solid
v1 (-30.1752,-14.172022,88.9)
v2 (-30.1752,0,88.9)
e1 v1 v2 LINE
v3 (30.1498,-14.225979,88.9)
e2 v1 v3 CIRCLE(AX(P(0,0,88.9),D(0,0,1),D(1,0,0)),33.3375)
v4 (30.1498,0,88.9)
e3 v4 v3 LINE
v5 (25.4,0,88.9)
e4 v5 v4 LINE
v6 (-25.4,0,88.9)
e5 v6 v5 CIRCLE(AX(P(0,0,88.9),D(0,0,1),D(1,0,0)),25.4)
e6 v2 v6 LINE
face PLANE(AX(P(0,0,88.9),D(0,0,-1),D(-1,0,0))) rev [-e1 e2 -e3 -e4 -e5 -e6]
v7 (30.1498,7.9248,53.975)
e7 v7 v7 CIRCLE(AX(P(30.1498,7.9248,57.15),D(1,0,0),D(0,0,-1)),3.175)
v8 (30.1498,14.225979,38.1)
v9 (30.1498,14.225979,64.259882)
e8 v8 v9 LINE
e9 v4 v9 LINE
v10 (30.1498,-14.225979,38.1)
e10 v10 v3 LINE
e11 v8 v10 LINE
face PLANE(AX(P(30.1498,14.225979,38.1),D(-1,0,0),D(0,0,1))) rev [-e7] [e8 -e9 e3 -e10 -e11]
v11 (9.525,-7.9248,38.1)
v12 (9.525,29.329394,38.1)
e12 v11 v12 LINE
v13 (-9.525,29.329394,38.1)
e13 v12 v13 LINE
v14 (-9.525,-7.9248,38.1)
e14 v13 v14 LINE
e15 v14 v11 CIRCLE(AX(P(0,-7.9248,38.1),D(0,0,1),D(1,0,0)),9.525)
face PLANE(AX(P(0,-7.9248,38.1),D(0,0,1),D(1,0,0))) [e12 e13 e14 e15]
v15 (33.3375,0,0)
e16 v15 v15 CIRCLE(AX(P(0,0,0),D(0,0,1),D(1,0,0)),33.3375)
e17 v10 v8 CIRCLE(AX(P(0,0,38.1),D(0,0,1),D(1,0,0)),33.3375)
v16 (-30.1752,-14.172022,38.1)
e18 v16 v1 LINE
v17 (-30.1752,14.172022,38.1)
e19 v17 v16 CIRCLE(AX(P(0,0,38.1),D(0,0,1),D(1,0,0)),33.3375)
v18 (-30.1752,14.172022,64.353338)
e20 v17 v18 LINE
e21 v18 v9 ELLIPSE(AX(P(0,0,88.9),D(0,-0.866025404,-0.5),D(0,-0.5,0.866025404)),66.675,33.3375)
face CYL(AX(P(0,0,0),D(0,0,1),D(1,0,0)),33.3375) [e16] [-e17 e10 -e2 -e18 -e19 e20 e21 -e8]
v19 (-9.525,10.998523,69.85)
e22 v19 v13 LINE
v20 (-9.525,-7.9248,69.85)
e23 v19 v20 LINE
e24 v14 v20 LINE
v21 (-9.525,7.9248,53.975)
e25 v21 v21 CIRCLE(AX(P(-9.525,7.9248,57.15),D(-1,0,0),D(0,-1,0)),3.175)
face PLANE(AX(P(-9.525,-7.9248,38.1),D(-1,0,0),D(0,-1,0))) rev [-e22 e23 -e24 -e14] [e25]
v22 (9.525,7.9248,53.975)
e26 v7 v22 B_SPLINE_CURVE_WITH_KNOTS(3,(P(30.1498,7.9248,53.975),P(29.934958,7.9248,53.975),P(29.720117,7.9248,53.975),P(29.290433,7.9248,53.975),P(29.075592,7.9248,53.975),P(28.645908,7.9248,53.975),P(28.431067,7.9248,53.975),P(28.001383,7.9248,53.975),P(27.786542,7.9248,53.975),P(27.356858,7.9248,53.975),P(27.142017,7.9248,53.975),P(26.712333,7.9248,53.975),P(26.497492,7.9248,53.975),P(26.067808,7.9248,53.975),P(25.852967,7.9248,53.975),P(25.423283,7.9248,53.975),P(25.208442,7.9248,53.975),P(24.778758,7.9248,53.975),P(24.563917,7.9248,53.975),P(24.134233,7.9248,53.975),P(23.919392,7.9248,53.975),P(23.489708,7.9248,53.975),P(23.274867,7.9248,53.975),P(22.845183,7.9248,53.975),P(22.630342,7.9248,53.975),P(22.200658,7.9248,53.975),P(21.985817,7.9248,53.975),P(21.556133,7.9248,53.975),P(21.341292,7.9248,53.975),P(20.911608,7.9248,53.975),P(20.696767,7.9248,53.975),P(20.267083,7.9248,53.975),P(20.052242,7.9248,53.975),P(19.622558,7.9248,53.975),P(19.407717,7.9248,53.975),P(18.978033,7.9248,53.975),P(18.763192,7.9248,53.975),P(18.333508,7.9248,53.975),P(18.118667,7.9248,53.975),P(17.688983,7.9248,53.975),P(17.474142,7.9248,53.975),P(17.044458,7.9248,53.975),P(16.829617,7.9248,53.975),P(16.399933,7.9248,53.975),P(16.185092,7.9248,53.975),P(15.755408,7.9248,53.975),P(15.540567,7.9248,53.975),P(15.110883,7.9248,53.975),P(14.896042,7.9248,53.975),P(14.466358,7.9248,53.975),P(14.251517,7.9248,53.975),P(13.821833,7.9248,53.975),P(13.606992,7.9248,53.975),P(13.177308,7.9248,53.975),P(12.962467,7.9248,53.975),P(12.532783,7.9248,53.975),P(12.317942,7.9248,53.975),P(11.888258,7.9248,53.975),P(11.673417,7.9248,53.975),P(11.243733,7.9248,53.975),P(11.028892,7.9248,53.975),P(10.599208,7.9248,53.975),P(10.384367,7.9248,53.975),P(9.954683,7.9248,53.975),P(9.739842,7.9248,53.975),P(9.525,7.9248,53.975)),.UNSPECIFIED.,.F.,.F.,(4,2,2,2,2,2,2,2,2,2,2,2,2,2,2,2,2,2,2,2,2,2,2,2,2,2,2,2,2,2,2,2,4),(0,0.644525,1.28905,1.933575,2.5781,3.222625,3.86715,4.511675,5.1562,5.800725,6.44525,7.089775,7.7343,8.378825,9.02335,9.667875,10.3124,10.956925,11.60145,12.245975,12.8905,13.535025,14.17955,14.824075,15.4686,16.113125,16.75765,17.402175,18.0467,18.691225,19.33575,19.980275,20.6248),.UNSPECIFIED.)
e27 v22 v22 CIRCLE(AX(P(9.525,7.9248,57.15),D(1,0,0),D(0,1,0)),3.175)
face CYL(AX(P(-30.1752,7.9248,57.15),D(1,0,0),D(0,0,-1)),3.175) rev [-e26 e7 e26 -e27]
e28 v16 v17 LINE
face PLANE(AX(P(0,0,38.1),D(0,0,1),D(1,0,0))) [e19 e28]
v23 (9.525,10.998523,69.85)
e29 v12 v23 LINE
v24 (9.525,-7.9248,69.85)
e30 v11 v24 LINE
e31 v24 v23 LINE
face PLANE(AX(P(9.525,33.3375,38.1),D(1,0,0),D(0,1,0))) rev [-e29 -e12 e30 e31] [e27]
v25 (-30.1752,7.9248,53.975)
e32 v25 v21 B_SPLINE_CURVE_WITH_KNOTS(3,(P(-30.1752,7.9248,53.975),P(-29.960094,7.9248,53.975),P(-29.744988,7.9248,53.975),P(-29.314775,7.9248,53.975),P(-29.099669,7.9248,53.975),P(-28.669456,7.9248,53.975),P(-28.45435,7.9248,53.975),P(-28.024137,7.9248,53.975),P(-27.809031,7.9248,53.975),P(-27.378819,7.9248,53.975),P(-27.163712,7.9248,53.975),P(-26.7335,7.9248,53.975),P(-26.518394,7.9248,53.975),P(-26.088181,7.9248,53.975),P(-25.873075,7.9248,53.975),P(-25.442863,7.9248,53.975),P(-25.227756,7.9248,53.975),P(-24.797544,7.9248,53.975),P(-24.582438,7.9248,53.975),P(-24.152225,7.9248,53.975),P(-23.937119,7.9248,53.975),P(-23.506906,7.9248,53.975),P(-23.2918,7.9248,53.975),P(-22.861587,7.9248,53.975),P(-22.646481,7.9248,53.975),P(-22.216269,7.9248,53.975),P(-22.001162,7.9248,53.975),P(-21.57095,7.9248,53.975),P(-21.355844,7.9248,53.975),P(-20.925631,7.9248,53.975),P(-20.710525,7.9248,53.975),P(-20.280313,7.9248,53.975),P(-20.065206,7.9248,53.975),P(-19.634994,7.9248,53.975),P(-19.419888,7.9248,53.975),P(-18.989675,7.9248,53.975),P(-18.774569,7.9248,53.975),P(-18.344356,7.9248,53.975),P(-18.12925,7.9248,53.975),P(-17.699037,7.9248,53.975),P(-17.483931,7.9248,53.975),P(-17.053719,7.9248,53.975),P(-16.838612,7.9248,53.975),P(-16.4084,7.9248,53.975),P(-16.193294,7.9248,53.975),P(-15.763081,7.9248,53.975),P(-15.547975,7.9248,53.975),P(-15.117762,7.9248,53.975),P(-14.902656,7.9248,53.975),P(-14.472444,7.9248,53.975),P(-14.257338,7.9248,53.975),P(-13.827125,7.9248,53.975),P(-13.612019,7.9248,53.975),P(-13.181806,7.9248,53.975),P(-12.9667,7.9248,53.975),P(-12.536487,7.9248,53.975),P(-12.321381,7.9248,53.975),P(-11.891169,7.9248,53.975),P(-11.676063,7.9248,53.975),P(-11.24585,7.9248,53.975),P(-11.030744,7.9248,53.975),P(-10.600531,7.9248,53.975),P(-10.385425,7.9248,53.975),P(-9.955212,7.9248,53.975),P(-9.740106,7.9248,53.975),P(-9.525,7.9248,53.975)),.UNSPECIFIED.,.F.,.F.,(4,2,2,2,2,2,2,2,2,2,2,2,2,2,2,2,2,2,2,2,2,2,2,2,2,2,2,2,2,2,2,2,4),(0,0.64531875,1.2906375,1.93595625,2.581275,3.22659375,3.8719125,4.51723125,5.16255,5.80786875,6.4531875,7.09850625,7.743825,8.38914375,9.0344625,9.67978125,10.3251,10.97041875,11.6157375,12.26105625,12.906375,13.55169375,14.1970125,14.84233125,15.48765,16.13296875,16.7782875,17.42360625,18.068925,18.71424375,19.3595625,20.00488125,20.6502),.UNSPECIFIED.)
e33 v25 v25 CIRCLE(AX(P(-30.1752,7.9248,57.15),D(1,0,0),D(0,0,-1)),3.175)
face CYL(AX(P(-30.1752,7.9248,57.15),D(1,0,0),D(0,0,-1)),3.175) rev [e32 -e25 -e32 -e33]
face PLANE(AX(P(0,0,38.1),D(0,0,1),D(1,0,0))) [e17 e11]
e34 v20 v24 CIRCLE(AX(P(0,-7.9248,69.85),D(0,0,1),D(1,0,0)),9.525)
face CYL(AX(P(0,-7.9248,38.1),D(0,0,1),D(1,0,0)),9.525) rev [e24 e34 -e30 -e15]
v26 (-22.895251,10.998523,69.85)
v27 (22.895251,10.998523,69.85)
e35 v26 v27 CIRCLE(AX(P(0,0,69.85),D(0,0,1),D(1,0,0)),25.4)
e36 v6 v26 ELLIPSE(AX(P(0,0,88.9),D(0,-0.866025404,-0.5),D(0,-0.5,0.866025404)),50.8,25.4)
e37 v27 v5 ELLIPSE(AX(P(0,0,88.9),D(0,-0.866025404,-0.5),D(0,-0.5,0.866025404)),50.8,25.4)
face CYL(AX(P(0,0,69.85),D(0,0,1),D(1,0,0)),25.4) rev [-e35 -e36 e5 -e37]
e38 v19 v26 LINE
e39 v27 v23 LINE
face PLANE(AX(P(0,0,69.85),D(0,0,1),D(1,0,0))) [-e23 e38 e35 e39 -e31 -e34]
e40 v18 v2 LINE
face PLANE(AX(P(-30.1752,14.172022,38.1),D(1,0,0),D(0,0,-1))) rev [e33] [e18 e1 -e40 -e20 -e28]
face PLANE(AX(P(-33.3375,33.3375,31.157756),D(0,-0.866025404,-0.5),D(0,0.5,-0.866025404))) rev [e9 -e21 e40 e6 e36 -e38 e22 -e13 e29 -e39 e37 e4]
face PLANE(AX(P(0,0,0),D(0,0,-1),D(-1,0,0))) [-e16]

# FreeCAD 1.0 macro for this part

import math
import FreeCAD as App
import Part
import Sketcher

V = App.Vector
Q = App.Units.Quantity


def add_polygon(sketch, points):
    """Adds a closed chain of lines whose ends are joined by coincident constraints."""
    first, n = sketch.GeometryCount, len(points)
    for a, b in zip(points, points[1:] + points[:1]):
        sketch.addGeometry(Part.LineSegment(App.Vector(*a, 0), App.Vector(*b, 0)), False)
    for i in range(n):
        sketch.addConstraint(Sketcher.Constraint("Coincident", first + i, 2, first + (i + 1) % n, 1))

doc = App.newDocument("Part")
body = doc.addObject("PartDesign::Body", "Body")

sketch1 = body.newObject("Sketcher::SketchObject", "Sketch")
sketch1.AttachmentSupport = (doc.getObject("XY_Plane"), [""])
sketch1.MapMode = "FlatFace"
add_polygon(sketch1, [(-33, 33), (-33, -33), (33, -33), (33, 33)])
sketch1.addConstraint(Sketcher.Constraint("Vertical", 0))
sketch1.addConstraint(Sketcher.Constraint("Horizontal", 1))
sketch1.addConstraint(Sketcher.Constraint("Vertical", 2))
sketch1.addConstraint(Sketcher.Constraint("Horizontal", 3))
sketch1.addConstraint(Sketcher.Constraint("Symmetric", 0, 2, 2, 2, -1, 1))
sketch1.addConstraint(Sketcher.Constraint("Equal", 3, 0))
sketch1.addConstraint(Sketcher.Constraint("DistanceX", 1, 1, 1, 2, Q("2.625 in")))
pad1 = body.newObject("PartDesign::Pad", "Pad")
pad1.Profile = sketch1
pad1.Length = Q("3.5 in")

sketch2 = body.newObject("Sketcher::SketchObject", "Sketch001")
sketch2.AttachmentSupport = (doc.getObject("YZ_Plane"), [""])
sketch2.MapMode = "FlatFace"
sketch2.AttachmentOffset = App.Placement(V(0, 0, 1.3125 * 25.4), App.Rotation())
add_polygon(sketch2, [(33, 89), (0, 89), (33, 31)])
sketch2.addConstraint(Sketcher.Constraint("Horizontal", 0))
sketch2.addConstraint(Sketcher.Constraint("Vertical", 2))
sketch2.addConstraint(Sketcher.Constraint("PointOnObject", 0, 2, -2))
sketch2.addConstraint(Sketcher.Constraint("Angle", 1, Q("-60 deg")))
sketch2.addConstraint(Sketcher.Constraint("DistanceY", -1, 1, 0, 2, Q("3.5 in")))
sketch2.addConstraint(Sketcher.Constraint("DistanceX", 0, 2, 0, 1, Q("1.3125 in")))
pocket1 = body.newObject("PartDesign::Pocket", "Pocket")
pocket1.Profile = sketch2
pocket1.Type = "ThroughAll"

sketch3 = body.newObject("Sketcher::SketchObject", "Sketch002")
sketch3.AttachmentSupport = (doc.getObject("XY_Plane"), [""])
sketch3.MapMode = "FlatFace"
sketch3.AttachmentOffset = App.Placement(V(0, 0, 3.5 * 25.4), App.Rotation())
sketch3.addGeometry(Part.Circle(V(0, 0, 0), V(0, 0, 1), 25), False)
sketch3.addConstraint(Sketcher.Constraint("Coincident", 0, 3, -1, 1))
sketch3.addConstraint(Sketcher.Constraint("Diameter", 0, Q("2 in")))
pocket2 = body.newObject("PartDesign::Pocket", "Pocket001")
pocket2.Profile = sketch3
pocket2.Length = Q("0.75 in")

sketch4 = body.newObject("Sketcher::SketchObject", "Sketch003")
sketch4.AttachmentSupport = (doc.getObject("XY_Plane"), [""])
sketch4.MapMode = "FlatFace"
sketch4.AttachmentOffset = App.Placement(V(0, 0, 2.75 * 25.4), App.Rotation())
sketch4.addGeometry(Part.LineSegment(V(-10, 33, 0), V(-10, -8, 0)), False)
sketch4.addGeometry(Part.ArcOfCircle(Part.Circle(V(0, -8, 0), V(0, 0, 1), 10), math.radians(180), math.radians(360)), False)
sketch4.addGeometry(Part.LineSegment(V(10, -8, 0), V(10, 33, 0)), False)
sketch4.addGeometry(Part.LineSegment(V(10, 33, 0), V(-10, 33, 0)), False)
sketch4.addConstraint(Sketcher.Constraint("Tangent", 0, 2, 1, 1))
sketch4.addConstraint(Sketcher.Constraint("Tangent", 1, 2, 2, 1))
sketch4.addConstraint(Sketcher.Constraint("Coincident", 2, 2, 3, 1))
sketch4.addConstraint(Sketcher.Constraint("Coincident", 3, 2, 0, 1))
sketch4.addConstraint(Sketcher.Constraint("Vertical", 0))
sketch4.addConstraint(Sketcher.Constraint("Vertical", 2))
sketch4.addConstraint(Sketcher.Constraint("Horizontal", 3))
sketch4.addConstraint(Sketcher.Constraint("PointOnObject", 1, 3, -2))
sketch4.addConstraint(Sketcher.Constraint("Radius", 1, Q("0.375 in")))
sketch4.addConstraint(Sketcher.Constraint("DistanceY", 0, 2, 0, 1, Q("1.6245 in")))
sketch4.addConstraint(Sketcher.Constraint("DistanceY", 1, 3, -1, 1, Q("0.312 in")))
pocket3 = body.newObject("PartDesign::Pocket", "Pocket002")
pocket3.Profile = sketch4
pocket3.Length = Q("1.25 in")

sketch5 = body.newObject("Sketcher::SketchObject", "Sketch004")
sketch5.AttachmentSupport = (doc.getObject("XY_Plane"), [""])
sketch5.MapMode = "FlatFace"
sketch5.AttachmentOffset = App.Placement(V(0, 0, 3.5 * 25.4), App.Rotation())
add_polygon(sketch5, [(-47, 47), (-47, -47), (47, -47), (47, 47)])
sketch5.addGeometry(Part.Circle(V(0, 0, 0), V(0, 0, 1), 33), False)
sketch5.addConstraint(Sketcher.Constraint("Vertical", 0))
sketch5.addConstraint(Sketcher.Constraint("Horizontal", 1))
sketch5.addConstraint(Sketcher.Constraint("Vertical", 2))
sketch5.addConstraint(Sketcher.Constraint("Horizontal", 3))
sketch5.addConstraint(Sketcher.Constraint("Coincident", 4, 3, -1, 1))
sketch5.addConstraint(Sketcher.Constraint("Equal", 3, 0))
sketch5.addConstraint(Sketcher.Constraint("Diameter", 4, Q("2.625 in")))
sketch5.addConstraint(Sketcher.Constraint("DistanceX", 1, 1, 1, 2, Q("94.593 mm")))
sketch5.addConstraint(Sketcher.Constraint("DistanceX", 0, 2, -1, 1, Q("47.296 mm")))
sketch5.addConstraint(Sketcher.Constraint("DistanceY", 0, 2, -1, 1, Q("47.296 mm")))
pocket4 = body.newObject("PartDesign::Pocket", "Pocket003")
pocket4.Profile = sketch5
pocket4.Type = "ThroughAll"

sketch6 = body.newObject("Sketcher::SketchObject", "Sketch005")
sketch6.AttachmentSupport = (doc.getObject("XY_Plane"), [""])
sketch6.MapMode = "FlatFace"
sketch6.AttachmentOffset = App.Placement(V(0, 0, 3.5 * 25.4), App.Rotation())
sketch6.addGeometry(Part.LineSegment(V(-30, -14, 0), V(-30, 14, 0)), False)
sketch6.addGeometry(Part.ArcOfCircle(Part.Circle(V(0, 0, 0), V(0, 0, 1), 33), math.radians(155), math.radians(205)), False)
sketch6.addGeometry(Part.LineSegment(V(30, 14, 0), V(30, -14, 0)), False)
sketch6.addGeometry(Part.ArcOfCircle(Part.Circle(V(0, 0, 0), V(0, 0, 1), 33), math.radians(-25), math.radians(25)), False)
sketch6.addConstraint(Sketcher.Constraint("Coincident", 0, 1, 1, 2))
sketch6.addConstraint(Sketcher.Constraint("Coincident", 1, 1, 0, 2))
sketch6.addConstraint(Sketcher.Constraint("Coincident", 2, 1, 3, 2))
sketch6.addConstraint(Sketcher.Constraint("Coincident", 3, 1, 2, 2))
sketch6.addConstraint(Sketcher.Constraint("Vertical", 0))
sketch6.addConstraint(Sketcher.Constraint("Vertical", 2))
sketch6.addConstraint(Sketcher.Constraint("Coincident", 1, 3, -1, 1))
sketch6.addConstraint(Sketcher.Constraint("Coincident", 3, 3, -1, 1))
sketch6.addConstraint(Sketcher.Constraint("Equal", 1, 3))
sketch6.addConstraint(Sketcher.Constraint("Radius", 1, Q("1.3125 in")))
sketch6.addConstraint(Sketcher.Constraint("DistanceX", 0, 1, -1, 1, Q("1.188 in")))
sketch6.addConstraint(Sketcher.Constraint("DistanceX", -1, 1, 2, 1, Q("1.187 in")))
pocket5 = body.newObject("PartDesign::Pocket", "Pocket004")
pocket5.Profile = sketch6
pocket5.Length = Q("2 in")

sketch7 = body.newObject("Sketcher::SketchObject", "Sketch006")
sketch7.AttachmentSupport = (doc.getObject("YZ_Plane"), [""])
sketch7.MapMode = "FlatFace"
sketch7.AttachmentOffset = App.Placement(V(0, 0, 1.187 * 25.4), App.Rotation())
sketch7.addGeometry(Part.Circle(V(7.9, 57.1, 0), V(0, 0, 1), 3.2), False)
sketch7.addConstraint(Sketcher.Constraint("Diameter", 0, Q("0.25 in")))
sketch7.addConstraint(Sketcher.Constraint("DistanceY", -1, 1, 0, 3, Q("2.25 in")))
sketch7.addConstraint(Sketcher.Constraint("DistanceX", -1, 1, 0, 3, Q("0.312 in")))
pocket6 = body.newObject("PartDesign::Pocket", "Pocket005")
pocket6.Profile = sketch7
pocket6.Length = Q("2.375 in")

doc.recompute()
